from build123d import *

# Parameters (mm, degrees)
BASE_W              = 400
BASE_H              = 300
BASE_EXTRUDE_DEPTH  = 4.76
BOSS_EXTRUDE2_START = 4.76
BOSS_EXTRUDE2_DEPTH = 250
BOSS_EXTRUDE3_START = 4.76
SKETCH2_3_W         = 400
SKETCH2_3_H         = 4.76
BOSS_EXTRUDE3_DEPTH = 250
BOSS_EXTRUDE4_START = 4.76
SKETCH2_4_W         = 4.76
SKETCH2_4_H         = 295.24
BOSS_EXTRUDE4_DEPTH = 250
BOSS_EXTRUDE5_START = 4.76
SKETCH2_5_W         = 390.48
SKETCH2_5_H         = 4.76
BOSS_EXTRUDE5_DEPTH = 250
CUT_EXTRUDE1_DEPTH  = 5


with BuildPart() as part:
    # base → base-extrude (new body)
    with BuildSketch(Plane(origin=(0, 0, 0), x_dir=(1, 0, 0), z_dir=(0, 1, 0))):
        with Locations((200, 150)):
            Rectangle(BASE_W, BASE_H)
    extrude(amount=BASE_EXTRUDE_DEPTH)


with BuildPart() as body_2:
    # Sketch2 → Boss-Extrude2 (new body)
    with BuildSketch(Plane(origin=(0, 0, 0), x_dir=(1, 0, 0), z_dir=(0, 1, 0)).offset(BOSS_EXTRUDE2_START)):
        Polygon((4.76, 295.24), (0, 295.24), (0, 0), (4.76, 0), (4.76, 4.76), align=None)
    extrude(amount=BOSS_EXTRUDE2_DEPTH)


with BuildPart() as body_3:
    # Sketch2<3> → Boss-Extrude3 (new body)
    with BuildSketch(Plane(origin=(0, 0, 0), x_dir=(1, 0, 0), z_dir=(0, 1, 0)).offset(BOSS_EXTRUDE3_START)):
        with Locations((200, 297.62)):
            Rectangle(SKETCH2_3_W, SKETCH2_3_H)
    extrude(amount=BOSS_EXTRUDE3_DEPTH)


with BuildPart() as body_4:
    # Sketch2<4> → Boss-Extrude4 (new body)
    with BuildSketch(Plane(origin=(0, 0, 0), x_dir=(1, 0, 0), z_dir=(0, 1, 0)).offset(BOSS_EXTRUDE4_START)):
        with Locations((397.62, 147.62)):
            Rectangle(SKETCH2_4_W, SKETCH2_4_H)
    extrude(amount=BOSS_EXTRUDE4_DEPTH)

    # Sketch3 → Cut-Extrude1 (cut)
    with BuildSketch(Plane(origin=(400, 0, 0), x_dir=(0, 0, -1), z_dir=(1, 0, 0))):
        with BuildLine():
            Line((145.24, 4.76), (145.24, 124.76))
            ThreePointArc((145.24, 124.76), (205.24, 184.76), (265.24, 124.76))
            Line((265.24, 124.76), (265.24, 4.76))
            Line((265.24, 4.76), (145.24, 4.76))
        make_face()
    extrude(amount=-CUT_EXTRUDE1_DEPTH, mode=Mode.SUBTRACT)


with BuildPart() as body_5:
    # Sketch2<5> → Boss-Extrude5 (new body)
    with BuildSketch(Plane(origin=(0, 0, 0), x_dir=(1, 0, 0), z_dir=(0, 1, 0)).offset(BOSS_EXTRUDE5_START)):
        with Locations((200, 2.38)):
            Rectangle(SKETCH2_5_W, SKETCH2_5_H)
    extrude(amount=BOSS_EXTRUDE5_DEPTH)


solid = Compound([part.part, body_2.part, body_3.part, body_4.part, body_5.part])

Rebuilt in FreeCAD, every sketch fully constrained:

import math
import FreeCAD as App
import Part
import Sketcher


def add_polygon(sketch, points):
    """Adds a closed chain of lines whose ends are joined by coincident constraints."""
    first, n = sketch.GeometryCount, len(points)
    for a, b in zip(points, points[1:] + points[:1]):
        sketch.addGeometry(Part.LineSegment(App.Vector(*a, 0), App.Vector(*b, 0)), False)
    for i in range(n):
        sketch.addConstraint(Sketcher.Constraint("Coincident", first + i, 2, first + (i + 1) % n, 1))

doc = App.newDocument("Part")
body = doc.addObject("PartDesign::Body", "Body")

# Sketch on XZ plane
sketch1 = body.newObject("Sketcher::SketchObject", "Sketch")
sketch1.AttachmentSupport = (doc.getObject("XZ_Plane"), [""])
sketch1.MapMode = "FlatFace"
add_polygon(sketch1, [(0, -300), (0, 0), (400, 0), (400, -300)])  # lines 0-3
sketch1.addConstraint(Sketcher.Constraint("Vertical", 0))
sketch1.addConstraint(Sketcher.Constraint("Horizontal", 1))
sketch1.addConstraint(Sketcher.Constraint("Vertical", 2))
sketch1.addConstraint(Sketcher.Constraint("Horizontal", 3))
sketch1.addConstraint(Sketcher.Constraint("Coincident", 0, 2, -1, 1))
sketch1.addConstraint(Sketcher.Constraint("DistanceX", 1, 1, 1, 2, 400.0))
sketch1.addConstraint(Sketcher.Constraint("DistanceY", 0, 1, 0, 2, 300.0))
pad1 = body.newObject("PartDesign::Pad", "Pad")
pad1.Profile = sketch1
pad1.Length = 4.76
pad1.Reversed = True
body2 = doc.addObject("PartDesign::Body", "Body001")

# Sketch on XZ plane
sketch2 = body2.newObject("Sketcher::SketchObject", "Sketch001")
sketch2.AttachmentSupport = (doc.getObject("XZ_Plane001"), [""])
sketch2.MapMode = "FlatFace"
sketch2.AttachmentOffset = App.Placement(App.Vector(0, 0, -4.76), App.Rotation())
add_polygon(sketch2, [(4.76, -295.24), (0, -295.24), (0, 0), (4.76, 0)])  # lines 0-3
sketch2.addConstraint(Sketcher.Constraint("Horizontal", 0))
sketch2.addConstraint(Sketcher.Constraint("Vertical", 1))
sketch2.addConstraint(Sketcher.Constraint("Horizontal", 2))
sketch2.addConstraint(Sketcher.Constraint("Vertical", 3))
sketch2.addConstraint(Sketcher.Constraint("Coincident", 1, 2, -1, 1))
sketch2.addConstraint(Sketcher.Constraint("DistanceX", 0, 2, 0, 1, 4.76))
sketch2.addConstraint(Sketcher.Constraint("DistanceY", 1, 1, 1, 2, 295.24))
pad2 = body2.newObject("PartDesign::Pad", "Pad001")
pad2.Profile = sketch2
pad2.Length = 250
pad2.Reversed = True
body3 = doc.addObject("PartDesign::Body", "Body002")

# Sketch on XZ plane
sketch3 = body3.newObject("Sketcher::SketchObject", "Sketch002")
sketch3.AttachmentSupport = (doc.getObject("XZ_Plane002"), [""])
sketch3.MapMode = "FlatFace"
sketch3.AttachmentOffset = App.Placement(App.Vector(0, 0, -4.76), App.Rotation())
add_polygon(sketch3, [(0, -300), (0, -295.24), (400, -295.24), (400, -300)])  # lines 0-3
sketch3.addConstraint(Sketcher.Constraint("Vertical", 0))
sketch3.addConstraint(Sketcher.Constraint("Horizontal", 1))
sketch3.addConstraint(Sketcher.Constraint("Vertical", 2))
sketch3.addConstraint(Sketcher.Constraint("Horizontal", 3))
sketch3.addConstraint(Sketcher.Constraint("PointOnObject", 0, 2, -2))
sketch3.addConstraint(Sketcher.Constraint("DistanceX", 1, 1, 1, 2, 400.0))
sketch3.addConstraint(Sketcher.Constraint("DistanceY", 2, 2, -1, 1, 300.0))
sketch3.addConstraint(Sketcher.Constraint("DistanceY", 0, 1, 0, 2, 4.76))
pad3 = body3.newObject("PartDesign::Pad", "Pad002")
pad3.Profile = sketch3
pad3.Length = 250
pad3.Reversed = True
body4 = doc.addObject("PartDesign::Body", "Body003")

# Sketch on XZ plane
sketch4 = body4.newObject("Sketcher::SketchObject", "Sketch003")
sketch4.AttachmentSupport = (doc.getObject("XZ_Plane003"), [""])
sketch4.MapMode = "FlatFace"
sketch4.AttachmentOffset = App.Placement(App.Vector(0, 0, -4.76), App.Rotation())
add_polygon(sketch4, [(395.24, -295.24), (395.24, 0), (400, 0), (400, -295.24)])  # lines 0-3
sketch4.addConstraint(Sketcher.Constraint("Vertical", 0))
sketch4.addConstraint(Sketcher.Constraint("Horizontal", 1))
sketch4.addConstraint(Sketcher.Constraint("Vertical", 2))
sketch4.addConstraint(Sketcher.Constraint("Horizontal", 3))
sketch4.addConstraint(Sketcher.Constraint("PointOnObject", 0, 2, -1))
sketch4.addConstraint(Sketcher.Constraint("DistanceX", -1, 1, 1, 2, 400.0))
sketch4.addConstraint(Sketcher.Constraint("DistanceX", 1, 1, 1, 2, 4.76))
sketch4.addConstraint(Sketcher.Constraint("DistanceY", 0, 1, 0, 2, 295.24))
pad4 = body4.newObject("PartDesign::Pad", "Pad003")
pad4.Profile = sketch4
pad4.Length = 250
pad4.Reversed = True

# Sketch on YZ plane
sketch5 = body4.newObject("Sketcher::SketchObject", "Sketch004")
sketch5.AttachmentSupport = (doc.getObject("YZ_Plane003"), [""])
sketch5.MapMode = "FlatFace"
sketch5.AttachmentOffset = App.Placement(App.Vector(0, 0, 400), App.Rotation())
sketch5.addGeometry(Part.LineSegment(App.Vector(124.76, -145.24, 0), App.Vector(4.76, -145.24, 0)), False)
sketch5.addGeometry(Part.LineSegment(App.Vector(4.76, -145.24, 0), App.Vector(4.76, -265.24, 0)), False)
sketch5.addGeometry(Part.LineSegment(App.Vector(4.76, -265.24, 0), App.Vector(124.76, -265.24, 0)), False)
sketch5.addGeometry(Part.ArcOfCircle(Part.Circle(App.Vector(124.76, -205.24, 0), App.Vector(0, 0, 1), 60), math.radians(-90), math.radians(90)), False)
sketch5.addConstraint(Sketcher.Constraint("Coincident", 0, 2, 1, 1))
sketch5.addConstraint(Sketcher.Constraint("Coincident", 1, 2, 2, 1))
sketch5.addConstraint(Sketcher.Constraint("Tangent", 2, 2, 3, 1))
sketch5.addConstraint(Sketcher.Constraint("Tangent", 3, 2, 0, 1))
sketch5.addConstraint(Sketcher.Constraint("Horizontal", 0))
sketch5.addConstraint(Sketcher.Constraint("Vertical", 1))
sketch5.addConstraint(Sketcher.Constraint("Horizontal", 2))
sketch5.addConstraint(Sketcher.Constraint("Equal", 2, 1))
sketch5.addConstraint(Sketcher.Constraint("Radius", 3, 60.0))
sketch5.addConstraint(Sketcher.Constraint("DistanceX", -1, 1, 3, 3, 124.76))
sketch5.addConstraint(Sketcher.Constraint("DistanceY", 3, 3, -1, 1, 205.24))
pocket1 = body4.newObject("PartDesign::Pocket", "Pocket")
pocket1.Profile = sketch5
pocket1.Length = 5
body5 = doc.addObject("PartDesign::Body", "Body004")

# Sketch on XZ plane
sketch6 = body5.newObject("Sketcher::SketchObject", "Sketch005")
sketch6.AttachmentSupport = (doc.getObject("XZ_Plane004"), [""])
sketch6.MapMode = "FlatFace"
sketch6.AttachmentOffset = App.Placement(App.Vector(0, 0, -4.76), App.Rotation())
add_polygon(sketch6, [(4.76, -4.76), (4.76, 0), (395.24, 0), (395.24, -4.76)])  # lines 0-3
sketch6.addConstraint(Sketcher.Constraint("Vertical", 0))
sketch6.addConstraint(Sketcher.Constraint("Horizontal", 1))
sketch6.addConstraint(Sketcher.Constraint("Vertical", 2))
sketch6.addConstraint(Sketcher.Constraint("Horizontal", 3))
sketch6.addConstraint(Sketcher.Constraint("PointOnObject", 0, 2, -1))
sketch6.addConstraint(Sketcher.Constraint("DistanceX", 1, 1, 1, 2, 390.48))
sketch6.addConstraint(Sketcher.Constraint("DistanceY", 0, 1, 0, 2, 4.76))
sketch6.addConstraint(Sketcher.Constraint("DistanceX", -1, 1, 0, 2, 4.76))
pad5 = body5.newObject("PartDesign::Pad", "Pad004")
pad5.Profile = sketch6
pad5.Length = 250
pad5.Reversed = True

doc.recompute()
